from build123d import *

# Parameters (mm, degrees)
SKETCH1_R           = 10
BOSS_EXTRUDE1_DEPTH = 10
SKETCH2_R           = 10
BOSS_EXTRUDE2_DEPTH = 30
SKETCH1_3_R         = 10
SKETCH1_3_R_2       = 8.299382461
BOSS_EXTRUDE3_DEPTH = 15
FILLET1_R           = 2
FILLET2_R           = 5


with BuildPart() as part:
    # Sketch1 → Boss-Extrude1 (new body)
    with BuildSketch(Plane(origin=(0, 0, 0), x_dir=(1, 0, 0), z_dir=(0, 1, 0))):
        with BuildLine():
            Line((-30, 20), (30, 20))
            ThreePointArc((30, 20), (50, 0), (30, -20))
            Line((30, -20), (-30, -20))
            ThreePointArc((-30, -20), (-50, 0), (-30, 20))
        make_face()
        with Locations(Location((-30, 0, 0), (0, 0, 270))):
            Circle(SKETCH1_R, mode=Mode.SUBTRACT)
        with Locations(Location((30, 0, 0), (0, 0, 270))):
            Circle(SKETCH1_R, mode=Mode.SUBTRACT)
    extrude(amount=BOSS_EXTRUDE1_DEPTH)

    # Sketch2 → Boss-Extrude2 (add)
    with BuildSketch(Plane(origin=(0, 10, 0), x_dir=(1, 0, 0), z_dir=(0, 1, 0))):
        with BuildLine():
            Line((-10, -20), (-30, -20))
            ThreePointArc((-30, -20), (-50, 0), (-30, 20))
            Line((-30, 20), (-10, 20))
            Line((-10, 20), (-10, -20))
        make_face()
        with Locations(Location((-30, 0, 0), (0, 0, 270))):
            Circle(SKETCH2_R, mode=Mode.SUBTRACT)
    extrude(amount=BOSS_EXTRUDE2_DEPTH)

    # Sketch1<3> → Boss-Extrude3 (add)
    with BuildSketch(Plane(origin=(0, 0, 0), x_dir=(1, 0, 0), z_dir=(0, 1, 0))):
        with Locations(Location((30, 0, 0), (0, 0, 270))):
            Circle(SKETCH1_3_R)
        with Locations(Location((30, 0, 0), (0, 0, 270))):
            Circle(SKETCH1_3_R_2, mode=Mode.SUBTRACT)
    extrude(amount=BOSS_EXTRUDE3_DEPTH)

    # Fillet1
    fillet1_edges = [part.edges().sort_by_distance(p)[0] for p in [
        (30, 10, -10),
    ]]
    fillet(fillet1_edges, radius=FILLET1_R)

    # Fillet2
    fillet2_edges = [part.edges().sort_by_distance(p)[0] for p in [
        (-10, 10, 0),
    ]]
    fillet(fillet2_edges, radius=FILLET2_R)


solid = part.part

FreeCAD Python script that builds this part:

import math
import FreeCAD as App
import Part
import Sketcher
from FreeCAD import Vector
Q = App.Units.Quantity


def edges_at(feature, points):
    """Names of the edges that pass closest to the given points."""
    edges = feature.Shape.Edges
    near = lambda p: min(range(len(edges)), key=lambda i: edges[i].distToShape(Part.Vertex(*p))[0])
    return sorted({f"Edge{near(p) + 1}" for p in points})

doc = App.newDocument("Part")
body = doc.addObject("PartDesign::Body", "Body")

sketch1 = body.newObject("Sketcher::SketchObject", "Sketch")
sketch1.AttachmentSupport = (doc.getObject("XZ_Plane"), [""])
sketch1.MapMode = "FlatFace"
sketch1.addGeometry(Part.LineSegment(Vector(30, -20, 0), Vector(-30, -20, 0)), False)
sketch1.addGeometry(Part.ArcOfCircle(Part.Circle(Vector(-30, 0, 0), Vector(0, 0, 1), 20), math.radians(90), math.radians(270)), False)
sketch1.addGeometry(Part.LineSegment(Vector(-30, 20, 0), Vector(30, 20, 0)), False)
sketch1.addGeometry(Part.ArcOfCircle(Part.Circle(Vector(30, 0, 0), Vector(0, 0, 1), 20), math.radians(-90), math.radians(90)), False)
sketch1.addGeometry(Part.Circle(Vector(30, 0, 0), Vector(0, 0, 1), 10), False)
sketch1.addGeometry(Part.Circle(Vector(-30, 0, 0), Vector(0, 0, 1), 10), False)
sketch1.addConstraint(Sketcher.Constraint("Tangent", 0, 2, 1, 2))
sketch1.addConstraint(Sketcher.Constraint("Tangent", 1, 1, 2, 1))
sketch1.addConstraint(Sketcher.Constraint("Tangent", 2, 2, 3, 2))
sketch1.addConstraint(Sketcher.Constraint("Tangent", 3, 1, 0, 1))
sketch1.addConstraint(Sketcher.Constraint("Horizontal", 0))
sketch1.addConstraint(Sketcher.Constraint("Horizontal", 2))
sketch1.addConstraint(Sketcher.Constraint("Coincident", 4, 3, 3, 3))
sketch1.addConstraint(Sketcher.Constraint("Coincident", 5, 3, 1, 3))
sketch1.addConstraint(Sketcher.Constraint("Equal", 4, 5))
sketch1.addConstraint(Sketcher.Constraint("Symmetric", 1, 3, 3, 3, -1, 1))
sketch1.addConstraint(Sketcher.Constraint("Diameter", 4, Q("20 mm")))
sketch1.addConstraint(Sketcher.Constraint("Radius", 1, Q("20 mm")))
sketch1.addConstraint(Sketcher.Constraint("DistanceX", 0, 2, 0, 1, Q("60 mm")))
pad1 = body.newObject("PartDesign::Pad", "Pad")
pad1.Profile = sketch1
pad1.Length = 10
pad1.Reversed = True

sketch2 = body.newObject("Sketcher::SketchObject", "Sketch001")
sketch2.AttachmentSupport = (doc.getObject("XZ_Plane"), [""])
sketch2.MapMode = "FlatFace"
sketch2.AttachmentOffset = App.Placement(Vector(0, 0, -10), App.Rotation())
sketch2.addGeometry(Part.LineSegment(Vector(-30, 20, 0), Vector(-10, 20, 0)), False)
sketch2.addGeometry(Part.LineSegment(Vector(-10, 20, 0), Vector(-10, -20, 0)), False)
sketch2.addGeometry(Part.LineSegment(Vector(-10, -20, 0), Vector(-30, -20, 0)), False)
sketch2.addGeometry(Part.ArcOfCircle(Part.Circle(Vector(-30, 0, 0), Vector(0, 0, 1), 20), math.radians(90), math.radians(270)), False)
sketch2.addGeometry(Part.Circle(Vector(-30, 0, 0), Vector(0, 0, 1), 10), False)
sketch2.addConstraint(Sketcher.Constraint("Coincident", 0, 2, 1, 1))
sketch2.addConstraint(Sketcher.Constraint("Coincident", 1, 2, 2, 1))
sketch2.addConstraint(Sketcher.Constraint("Tangent", 2, 2, 3, 2))
sketch2.addConstraint(Sketcher.Constraint("Tangent", 3, 1, 0, 1))
sketch2.addConstraint(Sketcher.Constraint("Horizontal", 0))
sketch2.addConstraint(Sketcher.Constraint("Vertical", 1))
sketch2.addConstraint(Sketcher.Constraint("Horizontal", 2))
sketch2.addConstraint(Sketcher.Constraint("Coincident", 4, 3, 3, 3))
sketch2.addConstraint(Sketcher.Constraint("PointOnObject", 3, 3, -1))
sketch2.addConstraint(Sketcher.Constraint("Diameter", 4, Q("20 mm")))
sketch2.addConstraint(Sketcher.Constraint("Radius", 3, Q("20 mm")))
sketch2.addConstraint(Sketcher.Constraint("DistanceX", 0, 1, 0, 2, Q("20 mm")))
sketch2.addConstraint(Sketcher.Constraint("DistanceX", 3, 3, -1, 1, Q("30 mm")))
pad2 = body.newObject("PartDesign::Pad", "Pad001")
pad2.Profile = sketch2
pad2.Length = 30
pad2.Reversed = True

sketch3 = body.newObject("Sketcher::SketchObject", "Sketch002")
sketch3.AttachmentSupport = (doc.getObject("XZ_Plane"), [""])
sketch3.MapMode = "FlatFace"
sketch3.addGeometry(Part.Circle(Vector(30, 0, 0), Vector(0, 0, 1), 10), False)
sketch3.addGeometry(Part.Circle(Vector(30, 0, 0), Vector(0, 0, 1), 8), False)
sketch3.addConstraint(Sketcher.Constraint("Coincident", 1, 3, 0, 3))
sketch3.addConstraint(Sketcher.Constraint("PointOnObject", 0, 3, -1))
sketch3.addConstraint(Sketcher.Constraint("Diameter", 0, Q("20 mm")))
sketch3.addConstraint(Sketcher.Constraint("DistanceX", -1, 1, 0, 3, Q("30 mm")))
sketch3.addConstraint(Sketcher.Constraint("Diameter", 1, Q("16.598765 mm")))
pad3 = body.newObject("PartDesign::Pad", "Pad002")
pad3.Profile = sketch3
pad3.Length = 15
pad3.Reversed = True
doc.recompute()

fillet = body.newObject("PartDesign::Fillet", "Fillet")
fillet.Base = (pad3, edges_at(pad3, [(30, 10, -10)]))
fillet.Radius = 2
doc.recompute()

fillet2 = body.newObject("PartDesign::Fillet", "Fillet001")
fillet2.Base = (fillet, edges_at(fillet, [(-10, 10, 0)]))
fillet2.Radius = 5

doc.recompute()
